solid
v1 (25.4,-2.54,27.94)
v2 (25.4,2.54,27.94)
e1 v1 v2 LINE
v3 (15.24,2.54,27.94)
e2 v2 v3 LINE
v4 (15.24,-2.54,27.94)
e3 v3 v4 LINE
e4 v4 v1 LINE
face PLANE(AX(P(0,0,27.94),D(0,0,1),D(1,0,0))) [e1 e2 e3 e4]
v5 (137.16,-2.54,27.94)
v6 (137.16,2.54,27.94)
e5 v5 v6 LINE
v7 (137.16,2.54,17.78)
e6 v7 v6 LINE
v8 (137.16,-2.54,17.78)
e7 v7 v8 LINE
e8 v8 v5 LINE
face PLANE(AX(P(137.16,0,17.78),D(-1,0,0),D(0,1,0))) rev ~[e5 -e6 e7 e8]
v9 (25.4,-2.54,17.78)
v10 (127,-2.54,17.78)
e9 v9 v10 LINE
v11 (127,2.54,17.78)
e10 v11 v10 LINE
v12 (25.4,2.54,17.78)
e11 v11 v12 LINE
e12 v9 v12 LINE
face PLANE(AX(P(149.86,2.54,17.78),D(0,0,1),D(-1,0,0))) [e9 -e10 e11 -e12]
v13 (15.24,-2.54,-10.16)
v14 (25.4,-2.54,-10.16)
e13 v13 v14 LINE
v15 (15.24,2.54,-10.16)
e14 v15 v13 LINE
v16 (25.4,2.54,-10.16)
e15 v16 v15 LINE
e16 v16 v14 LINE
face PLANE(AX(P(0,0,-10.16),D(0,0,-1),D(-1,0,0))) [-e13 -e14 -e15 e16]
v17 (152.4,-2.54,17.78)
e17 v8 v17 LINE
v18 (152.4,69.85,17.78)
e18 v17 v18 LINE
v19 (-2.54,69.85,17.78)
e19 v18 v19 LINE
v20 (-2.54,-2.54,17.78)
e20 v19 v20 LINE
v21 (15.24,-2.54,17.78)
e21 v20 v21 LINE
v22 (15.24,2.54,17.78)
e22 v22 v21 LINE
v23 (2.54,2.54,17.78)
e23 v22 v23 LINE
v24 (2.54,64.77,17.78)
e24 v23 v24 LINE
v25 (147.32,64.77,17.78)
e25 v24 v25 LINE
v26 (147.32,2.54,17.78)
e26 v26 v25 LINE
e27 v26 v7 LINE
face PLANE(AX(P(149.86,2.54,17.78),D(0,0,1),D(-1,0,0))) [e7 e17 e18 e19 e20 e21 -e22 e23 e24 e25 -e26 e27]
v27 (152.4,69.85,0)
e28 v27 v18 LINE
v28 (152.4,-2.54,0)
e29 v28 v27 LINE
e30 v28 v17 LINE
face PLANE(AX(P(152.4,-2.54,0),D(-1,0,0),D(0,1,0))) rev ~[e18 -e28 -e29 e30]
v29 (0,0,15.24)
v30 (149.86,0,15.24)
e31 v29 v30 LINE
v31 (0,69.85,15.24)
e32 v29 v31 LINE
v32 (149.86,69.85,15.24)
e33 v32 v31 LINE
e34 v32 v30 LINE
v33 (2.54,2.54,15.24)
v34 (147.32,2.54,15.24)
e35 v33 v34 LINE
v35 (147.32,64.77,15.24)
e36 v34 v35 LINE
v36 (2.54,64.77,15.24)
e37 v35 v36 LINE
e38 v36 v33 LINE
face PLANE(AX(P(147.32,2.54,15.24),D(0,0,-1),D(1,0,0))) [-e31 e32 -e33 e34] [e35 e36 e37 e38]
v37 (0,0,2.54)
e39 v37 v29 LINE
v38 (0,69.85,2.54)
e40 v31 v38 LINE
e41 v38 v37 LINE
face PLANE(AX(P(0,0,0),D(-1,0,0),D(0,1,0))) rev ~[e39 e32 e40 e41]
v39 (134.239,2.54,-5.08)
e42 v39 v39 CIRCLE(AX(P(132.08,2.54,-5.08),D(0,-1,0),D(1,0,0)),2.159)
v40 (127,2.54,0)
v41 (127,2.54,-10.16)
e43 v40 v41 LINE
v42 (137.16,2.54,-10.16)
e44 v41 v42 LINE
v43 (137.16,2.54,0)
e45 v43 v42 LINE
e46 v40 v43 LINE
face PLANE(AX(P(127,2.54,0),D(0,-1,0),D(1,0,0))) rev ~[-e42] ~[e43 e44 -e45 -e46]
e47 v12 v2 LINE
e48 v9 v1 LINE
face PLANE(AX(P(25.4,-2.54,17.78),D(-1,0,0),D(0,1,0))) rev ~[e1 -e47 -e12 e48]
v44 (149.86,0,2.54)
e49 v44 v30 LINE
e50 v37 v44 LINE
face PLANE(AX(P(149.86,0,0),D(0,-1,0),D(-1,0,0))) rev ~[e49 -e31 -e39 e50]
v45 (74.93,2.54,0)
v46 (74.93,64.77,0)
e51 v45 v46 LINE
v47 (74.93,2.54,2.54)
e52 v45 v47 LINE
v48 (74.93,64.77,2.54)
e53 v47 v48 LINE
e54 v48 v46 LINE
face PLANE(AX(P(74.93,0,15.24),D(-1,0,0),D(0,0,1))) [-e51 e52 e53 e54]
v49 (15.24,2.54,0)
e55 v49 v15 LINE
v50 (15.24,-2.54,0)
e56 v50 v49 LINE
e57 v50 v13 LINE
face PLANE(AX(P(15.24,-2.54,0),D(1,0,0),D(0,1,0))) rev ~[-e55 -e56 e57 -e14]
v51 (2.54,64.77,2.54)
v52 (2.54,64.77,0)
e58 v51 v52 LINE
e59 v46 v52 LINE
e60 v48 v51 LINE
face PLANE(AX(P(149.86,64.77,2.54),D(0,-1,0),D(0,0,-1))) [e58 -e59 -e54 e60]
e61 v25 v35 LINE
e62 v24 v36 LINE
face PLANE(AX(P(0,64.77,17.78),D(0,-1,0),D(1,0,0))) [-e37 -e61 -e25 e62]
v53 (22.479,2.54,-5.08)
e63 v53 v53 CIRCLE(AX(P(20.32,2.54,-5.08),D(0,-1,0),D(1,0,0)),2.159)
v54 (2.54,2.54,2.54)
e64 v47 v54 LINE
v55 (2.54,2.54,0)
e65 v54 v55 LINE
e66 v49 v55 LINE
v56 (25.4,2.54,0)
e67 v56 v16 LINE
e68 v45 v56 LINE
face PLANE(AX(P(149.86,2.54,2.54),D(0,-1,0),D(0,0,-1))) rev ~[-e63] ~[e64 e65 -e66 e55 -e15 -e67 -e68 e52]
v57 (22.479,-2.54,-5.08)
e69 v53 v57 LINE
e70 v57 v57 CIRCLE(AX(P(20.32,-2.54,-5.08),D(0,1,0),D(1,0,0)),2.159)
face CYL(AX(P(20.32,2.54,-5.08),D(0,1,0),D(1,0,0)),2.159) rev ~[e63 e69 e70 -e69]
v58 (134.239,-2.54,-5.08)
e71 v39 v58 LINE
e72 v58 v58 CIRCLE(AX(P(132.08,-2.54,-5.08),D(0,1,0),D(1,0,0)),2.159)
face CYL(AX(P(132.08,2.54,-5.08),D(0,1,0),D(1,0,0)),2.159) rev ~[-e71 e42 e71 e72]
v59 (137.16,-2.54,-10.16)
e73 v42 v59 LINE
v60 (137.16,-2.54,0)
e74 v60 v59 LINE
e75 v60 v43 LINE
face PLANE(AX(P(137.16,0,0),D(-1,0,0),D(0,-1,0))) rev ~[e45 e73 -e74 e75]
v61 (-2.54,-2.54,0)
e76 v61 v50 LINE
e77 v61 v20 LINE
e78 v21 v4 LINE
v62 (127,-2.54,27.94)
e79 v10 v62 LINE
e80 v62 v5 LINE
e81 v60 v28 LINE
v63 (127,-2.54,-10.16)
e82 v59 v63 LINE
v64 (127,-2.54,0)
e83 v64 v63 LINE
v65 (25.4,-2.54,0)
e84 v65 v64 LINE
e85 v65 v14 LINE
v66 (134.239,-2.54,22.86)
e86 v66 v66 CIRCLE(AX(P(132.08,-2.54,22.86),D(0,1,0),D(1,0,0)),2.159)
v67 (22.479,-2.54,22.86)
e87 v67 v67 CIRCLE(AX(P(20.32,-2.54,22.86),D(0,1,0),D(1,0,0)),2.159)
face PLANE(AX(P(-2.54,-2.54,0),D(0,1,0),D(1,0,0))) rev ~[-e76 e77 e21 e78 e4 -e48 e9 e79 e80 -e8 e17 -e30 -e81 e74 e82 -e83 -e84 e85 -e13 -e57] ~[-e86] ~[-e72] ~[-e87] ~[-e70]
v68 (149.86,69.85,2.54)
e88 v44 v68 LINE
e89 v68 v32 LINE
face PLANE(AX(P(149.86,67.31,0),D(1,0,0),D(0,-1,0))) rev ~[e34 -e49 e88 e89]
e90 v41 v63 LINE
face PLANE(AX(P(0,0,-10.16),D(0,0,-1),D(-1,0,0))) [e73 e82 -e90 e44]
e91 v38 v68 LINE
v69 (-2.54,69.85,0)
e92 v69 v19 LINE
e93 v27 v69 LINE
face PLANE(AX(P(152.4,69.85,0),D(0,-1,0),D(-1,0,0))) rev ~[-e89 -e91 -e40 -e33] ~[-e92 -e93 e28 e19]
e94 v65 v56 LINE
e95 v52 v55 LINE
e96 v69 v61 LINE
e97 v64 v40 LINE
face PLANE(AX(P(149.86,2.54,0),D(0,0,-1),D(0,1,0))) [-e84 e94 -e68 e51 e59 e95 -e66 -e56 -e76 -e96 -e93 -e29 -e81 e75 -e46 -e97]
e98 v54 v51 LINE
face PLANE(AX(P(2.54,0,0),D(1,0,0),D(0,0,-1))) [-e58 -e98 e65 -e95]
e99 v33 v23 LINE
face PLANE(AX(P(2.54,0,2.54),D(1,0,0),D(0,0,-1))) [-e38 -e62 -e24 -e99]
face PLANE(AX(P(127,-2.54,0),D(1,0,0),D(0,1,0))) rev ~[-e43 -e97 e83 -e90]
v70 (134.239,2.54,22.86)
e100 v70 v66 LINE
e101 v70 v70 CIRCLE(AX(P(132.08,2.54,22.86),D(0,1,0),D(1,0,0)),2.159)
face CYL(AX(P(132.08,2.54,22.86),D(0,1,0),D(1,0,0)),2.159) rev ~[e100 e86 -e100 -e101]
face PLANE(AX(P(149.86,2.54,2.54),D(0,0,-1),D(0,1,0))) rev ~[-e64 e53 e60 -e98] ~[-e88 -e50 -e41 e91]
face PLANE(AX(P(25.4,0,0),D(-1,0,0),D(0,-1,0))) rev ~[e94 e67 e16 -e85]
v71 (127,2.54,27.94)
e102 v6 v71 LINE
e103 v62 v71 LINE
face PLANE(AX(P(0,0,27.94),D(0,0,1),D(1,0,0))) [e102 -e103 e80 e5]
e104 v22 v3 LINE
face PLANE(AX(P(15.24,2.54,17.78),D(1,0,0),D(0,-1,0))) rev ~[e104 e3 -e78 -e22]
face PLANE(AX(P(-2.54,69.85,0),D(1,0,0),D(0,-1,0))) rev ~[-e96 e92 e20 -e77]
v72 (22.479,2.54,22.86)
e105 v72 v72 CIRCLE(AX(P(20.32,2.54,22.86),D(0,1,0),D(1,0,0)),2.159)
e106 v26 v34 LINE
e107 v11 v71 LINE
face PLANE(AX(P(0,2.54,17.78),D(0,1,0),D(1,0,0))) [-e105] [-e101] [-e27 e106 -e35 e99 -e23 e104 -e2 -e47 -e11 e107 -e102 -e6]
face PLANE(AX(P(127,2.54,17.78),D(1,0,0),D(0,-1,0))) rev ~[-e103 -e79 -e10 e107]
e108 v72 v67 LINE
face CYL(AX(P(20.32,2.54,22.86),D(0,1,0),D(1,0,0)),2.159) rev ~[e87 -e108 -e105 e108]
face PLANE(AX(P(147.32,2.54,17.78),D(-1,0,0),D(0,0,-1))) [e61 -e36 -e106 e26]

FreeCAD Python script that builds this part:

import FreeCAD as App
import Part
import Sketcher
Q = App.Units.Quantity

doc = App.newDocument("Part")
body = doc.addObject("PartDesign::Body", "Body")

# Sketch on XY plane
sketch1 = body.newObject("Sketcher::SketchObject", "Sketch")
sketch1.AttachmentSupport = (doc.getObject("XY_Plane"), [""])
sketch1.MapMode = "FlatFace"
sketch1.addGeometry(Part.LineSegment(App.Vector(152, 70, 0), App.Vector(-3, 70, 0)), False)
sketch1.addGeometry(Part.LineSegment(App.Vector(-3, 70, 0), App.Vector(-3, -3, 0)), False)
sketch1.addGeometry(Part.LineSegment(App.Vector(-3, -3, 0), App.Vector(152, -3, 0)), False)
sketch1.addGeometry(Part.LineSegment(App.Vector(152, -3, 0), App.Vector(152, 70, 0)), False)
sketch1.addGeometry(Part.LineSegment(App.Vector(150, 0, 0), App.Vector(0, 0, 0)), False)
sketch1.addGeometry(Part.LineSegment(App.Vector(0, 0, 0), App.Vector(0, 67, 0)), False)
sketch1.addGeometry(Part.LineSegment(App.Vector(0, 67, 0), App.Vector(150, 67, 0)), False)
sketch1.addGeometry(Part.LineSegment(App.Vector(150, 67, 0), App.Vector(150, 0, 0)), False)
sketch1.addConstraint(Sketcher.Constraint("Coincident", 0, 2, 1, 1))
sketch1.addConstraint(Sketcher.Constraint("Coincident", 1, 2, 2, 1))
sketch1.addConstraint(Sketcher.Constraint("Coincident", 2, 2, 3, 1))
sketch1.addConstraint(Sketcher.Constraint("Coincident", 3, 2, 0, 1))
sketch1.addConstraint(Sketcher.Constraint("Coincident", 4, 2, 5, 1))
sketch1.addConstraint(Sketcher.Constraint("Coincident", 5, 2, 6, 1))
sketch1.addConstraint(Sketcher.Constraint("Coincident", 6, 2, 7, 1))
sketch1.addConstraint(Sketcher.Constraint("Coincident", 7, 2, 4, 1))
sketch1.addConstraint(Sketcher.Constraint("Horizontal", 0))
sketch1.addConstraint(Sketcher.Constraint("Vertical", 1))
sketch1.addConstraint(Sketcher.Constraint("Horizontal", 2))
sketch1.addConstraint(Sketcher.Constraint("Vertical", 3))
sketch1.addConstraint(Sketcher.Constraint("Horizontal", 4))
sketch1.addConstraint(Sketcher.Constraint("Vertical", 5))
sketch1.addConstraint(Sketcher.Constraint("Horizontal", 6))
sketch1.addConstraint(Sketcher.Constraint("Vertical", 7))
sketch1.addConstraint(Sketcher.Constraint("Coincident", 4, 2, -1, 1))
sketch1.addConstraint(Sketcher.Constraint("DistanceX", 0, 2, 0, 1, Q("6.1 in")))
sketch1.addConstraint(Sketcher.Constraint("DistanceX", 4, 2, 4, 1, Q("5.9 in")))
sketch1.addConstraint(Sketcher.Constraint("DistanceY", 1, 2, 1, 1, Q("2.85 in")))
sketch1.addConstraint(Sketcher.Constraint("DistanceY", 5, 1, 5, 2, Q("2.65 in")))
sketch1.addConstraint(Sketcher.Constraint("DistanceX", -1, 1, 2, 2, Q("6 in")))
sketch1.addConstraint(Sketcher.Constraint("DistanceY", 1, 2, -1, 1, Q("0.1 in")))
pad1 = body.newObject("PartDesign::Pad", "Pad")
pad1.Profile = sketch1
pad1.Length = Q("0.7 in")

# Sketch on YZ plane
sketch2 = body.newObject("Sketcher::SketchObject", "Sketch001")
sketch2.AttachmentSupport = (doc.getObject("YZ_Plane"), [""])
sketch2.MapMode = "FlatFace"
sketch2.addGeometry(Part.LineSegment(App.Vector(0, 2.5, 0), App.Vector(0, 0, 0)), False)
sketch2.addGeometry(Part.LineSegment(App.Vector(0, 0, 0), App.Vector(67.3, 0, 0)), False)
sketch2.addGeometry(Part.LineSegment(App.Vector(67.3, 0, 0), App.Vector(67.3, 2.5, 0)), False)
sketch2.addGeometry(Part.LineSegment(App.Vector(67.3, 2.5, 0), App.Vector(0, 2.5, 0)), False)
sketch2.addConstraint(Sketcher.Constraint("Coincident", 0, 2, 1, 1))
sketch2.addConstraint(Sketcher.Constraint("Coincident", 1, 2, 2, 1))
sketch2.addConstraint(Sketcher.Constraint("Coincident", 2, 2, 3, 1))
sketch2.addConstraint(Sketcher.Constraint("Coincident", 3, 2, 0, 1))
sketch2.addConstraint(Sketcher.Constraint("Vertical", 0))
sketch2.addConstraint(Sketcher.Constraint("Horizontal", 1))
sketch2.addConstraint(Sketcher.Constraint("Vertical", 2))
sketch2.addConstraint(Sketcher.Constraint("Horizontal", 3))
sketch2.addConstraint(Sketcher.Constraint("Coincident", 0, 2, -1, 1))
sketch2.addConstraint(Sketcher.Constraint("DistanceY", 0, 2, 0, 1, Q("0.1 in")))
sketch2.addConstraint(Sketcher.Constraint("DistanceX", 1, 1, 1, 2, Q("2.65 in")))
pad2 = body.newObject("PartDesign::Pad", "Pad001")
pad2.Profile = sketch2
pad2.Length = Q("0.1 in")

# Sketch on XZ plane
sketch3 = body.newObject("Sketcher::SketchObject", "Sketch002")
sketch3.AttachmentSupport = (doc.getObject("XZ_Plane"), [""])
sketch3.MapMode = "FlatFace"
sketch3.addGeometry(Part.LineSegment(App.Vector(149.9, 15.2, 0), App.Vector(0, 15.2, 0)), False)
sketch3.addGeometry(Part.LineSegment(App.Vector(0, 15.2, 0), App.Vector(0, 17.8, 0)), False)
sketch3.addGeometry(Part.LineSegment(App.Vector(0, 17.8, 0), App.Vector(149.9, 17.8, 0)), False)
sketch3.addGeometry(Part.LineSegment(App.Vector(149.9, 17.8, 0), App.Vector(149.9, 15.2, 0)), False)
sketch3.addConstraint(Sketcher.Constraint("Coincident", 0, 2, 1, 1))
sketch3.addConstraint(Sketcher.Constraint("Coincident", 1, 2, 2, 1))
sketch3.addConstraint(Sketcher.Constraint("Coincident", 2, 2, 3, 1))
sketch3.addConstraint(Sketcher.Constraint("Coincident", 3, 2, 0, 1))
sketch3.addConstraint(Sketcher.Constraint("Horizontal", 0))
sketch3.addConstraint(Sketcher.Constraint("Vertical", 1))
sketch3.addConstraint(Sketcher.Constraint("Horizontal", 2))
sketch3.addConstraint(Sketcher.Constraint("Vertical", 3))
sketch3.addConstraint(Sketcher.Constraint("PointOnObject", 0, 2, -2))
sketch3.addConstraint(Sketcher.Constraint("DistanceX", 0, 2, 0, 1, Q("5.9 in")))
sketch3.addConstraint(Sketcher.Constraint("DistanceY", 1, 1, 1, 2, Q("0.1 in")))
sketch3.addConstraint(Sketcher.Constraint("DistanceY", -1, 1, 0, 2, Q("0.6 in")))
pad3 = body.newObject("PartDesign::Pad", "Pad002")
pad3.Profile = sketch3
pad3.Length = Q("0.1 in")
pad3.Reversed = True

# Sketch on XZ plane
sketch4 = body.newObject("Sketcher::SketchObject", "Sketch003")
sketch4.AttachmentSupport = (doc.getObject("XZ_Plane"), [""])
sketch4.MapMode = "FlatFace"
sketch4.AttachmentOffset = App.Placement(App.Vector(0, 0, -2.75 * 25.4), App.Rotation())
sketch4.addGeometry(Part.LineSegment(App.Vector(0, 3, 0), App.Vector(0, 15, 0)), False)
sketch4.addGeometry(Part.LineSegment(App.Vector(0, 15, 0), App.Vector(150, 15, 0)), False)
sketch4.addGeometry(Part.LineSegment(App.Vector(150, 15, 0), App.Vector(150, 3, 0)), False)
sketch4.addGeometry(Part.LineSegment(App.Vector(150, 3, 0), App.Vector(0, 3, 0)), False)
sketch4.addConstraint(Sketcher.Constraint("Coincident", 0, 2, 1, 1))
sketch4.addConstraint(Sketcher.Constraint("Coincident", 1, 2, 2, 1))
sketch4.addConstraint(Sketcher.Constraint("Coincident", 2, 2, 3, 1))
sketch4.addConstraint(Sketcher.Constraint("Coincident", 3, 2, 0, 1))
sketch4.addConstraint(Sketcher.Constraint("Vertical", 0))
sketch4.addConstraint(Sketcher.Constraint("Horizontal", 1))
sketch4.addConstraint(Sketcher.Constraint("Vertical", 2))
sketch4.addConstraint(Sketcher.Constraint("Horizontal", 3))
sketch4.addConstraint(Sketcher.Constraint("PointOnObject", 0, 2, -2))
sketch4.addConstraint(Sketcher.Constraint("DistanceX", 1, 1, 1, 2, Q("5.9 in")))
sketch4.addConstraint(Sketcher.Constraint("DistanceY", 0, 1, 0, 2, Q("0.5 in")))
sketch4.addConstraint(Sketcher.Constraint("DistanceY", -1, 1, 0, 2, Q("0.6 in")))
pocket1 = body.newObject("PartDesign::Pocket", "Pocket")
pocket1.Profile = sketch4
pocket1.Length = Q("0.1 in")
pocket1.Reversed = True

# Sketch on XZ plane
sketch5 = body.newObject("Sketcher::SketchObject", "Sketch004")
sketch5.AttachmentSupport = (doc.getObject("XZ_Plane"), [""])
sketch5.MapMode = "FlatFace"
sketch5.AttachmentOffset = App.Placement(App.Vector(0, 0, -2.65 * 25.4), App.Rotation())
sketch5.addGeometry(Part.LineSegment(App.Vector(149.9, 15.2, 0), App.Vector(149.9, 17.8, 0)), False)
sketch5.addGeometry(Part.LineSegment(App.Vector(149.9, 17.8, 0), App.Vector(0, 17.8, 0)), False)
sketch5.addGeometry(Part.LineSegment(App.Vector(0, 17.8, 0), App.Vector(0, 15.2, 0)), False)
sketch5.addGeometry(Part.LineSegment(App.Vector(0, 15.2, 0), App.Vector(149.9, 15.2, 0)), False)
sketch5.addConstraint(Sketcher.Constraint("Coincident", 0, 2, 1, 1))
sketch5.addConstraint(Sketcher.Constraint("Coincident", 1, 2, 2, 1))
sketch5.addConstraint(Sketcher.Constraint("Coincident", 2, 2, 3, 1))
sketch5.addConstraint(Sketcher.Constraint("Coincident", 3, 2, 0, 1))
sketch5.addConstraint(Sketcher.Constraint("Vertical", 0))
sketch5.addConstraint(Sketcher.Constraint("Horizontal", 1))
sketch5.addConstraint(Sketcher.Constraint("Vertical", 2))
sketch5.addConstraint(Sketcher.Constraint("Horizontal", 3))
sketch5.addConstraint(Sketcher.Constraint("PointOnObject", 1, 2, -2))
sketch5.addConstraint(Sketcher.Constraint("DistanceX", 1, 2, 1, 1, Q("5.9 in")))
sketch5.addConstraint(Sketcher.Constraint("DistanceY", 0, 1, 0, 2, Q("0.1 in")))
sketch5.addConstraint(Sketcher.Constraint("DistanceY", -1, 1, 0, 2, Q("0.7 in")))
pad4 = body.newObject("PartDesign::Pad", "Pad003")
pad4.Profile = sketch5
pad4.Length = Q("0.1 in")

# Sketch on YZ plane
sketch6 = body.newObject("Sketcher::SketchObject", "Sketch005")
sketch6.AttachmentSupport = (doc.getObject("YZ_Plane"), [""])
sketch6.MapMode = "FlatFace"
sketch6.addGeometry(Part.LineSegment(App.Vector(2.5, 17.8, 0), App.Vector(2.5, 15.2, 0)), False)
sketch6.addGeometry(Part.LineSegment(App.Vector(2.5, 15.2, 0), App.Vector(64.8, 15.2, 0)), False)
sketch6.addGeometry(Part.LineSegment(App.Vector(64.8, 15.2, 0), App.Vector(64.8, 17.8, 0)), False)
sketch6.addGeometry(Part.LineSegment(App.Vector(64.8, 17.8, 0), App.Vector(2.5, 17.8, 0)), False)
sketch6.addConstraint(Sketcher.Constraint("Coincident", 0, 2, 1, 1))
sketch6.addConstraint(Sketcher.Constraint("Coincident", 1, 2, 2, 1))
sketch6.addConstraint(Sketcher.Constraint("Coincident", 2, 2, 3, 1))
sketch6.addConstraint(Sketcher.Constraint("Coincident", 3, 2, 0, 1))
sketch6.addConstraint(Sketcher.Constraint("Vertical", 0))
sketch6.addConstraint(Sketcher.Constraint("Horizontal", 1))
sketch6.addConstraint(Sketcher.Constraint("Vertical", 2))
sketch6.addConstraint(Sketcher.Constraint("Horizontal", 3))
sketch6.addConstraint(Sketcher.Constraint("DistanceX", 1, 1, 1, 2, Q("2.45 in")))
sketch6.addConstraint(Sketcher.Constraint("DistanceY", 0, 2, 0, 1, Q("0.1 in")))
sketch6.addConstraint(Sketcher.Constraint("DistanceX", -1, 1, 0, 2, Q("0.1 in")))
sketch6.addConstraint(Sketcher.Constraint("DistanceY", -1, 1, 0, 2, Q("0.6 in")))
pad5 = body.newObject("PartDesign::Pad", "Pad004")
pad5.Profile = sketch6
pad5.Length = Q("0.1 in")

# Sketch on XZ plane
sketch7 = body.newObject("Sketcher::SketchObject", "Sketch006")
sketch7.AttachmentSupport = (doc.getObject("XZ_Plane"), [""])
sketch7.MapMode = "FlatFace"
sketch7.AttachmentOffset = App.Placement(App.Vector(0, 0, -0.1 * 25.4), App.Rotation())
sketch7.addGeometry(Part.LineSegment(App.Vector(149.9, 17.8, 0), App.Vector(149.9, 15.2, 0)), False)
sketch7.addGeometry(Part.LineSegment(App.Vector(149.9, 15.2, 0), App.Vector(147.3, 15.2, 0)), False)
sketch7.addGeometry(Part.LineSegment(App.Vector(147.3, 15.2, 0), App.Vector(147.3, 17.8, 0)), False)
sketch7.addGeometry(Part.LineSegment(App.Vector(147.3, 17.8, 0), App.Vector(149.9, 17.8, 0)), False)
sketch7.addConstraint(Sketcher.Constraint("Coincident", 0, 2, 1, 1))
sketch7.addConstraint(Sketcher.Constraint("Coincident", 1, 2, 2, 1))
sketch7.addConstraint(Sketcher.Constraint("Coincident", 2, 2, 3, 1))
sketch7.addConstraint(Sketcher.Constraint("Coincident", 3, 2, 0, 1))
sketch7.addConstraint(Sketcher.Constraint("Vertical", 0))
sketch7.addConstraint(Sketcher.Constraint("Horizontal", 1))
sketch7.addConstraint(Sketcher.Constraint("Vertical", 2))
sketch7.addConstraint(Sketcher.Constraint("Horizontal", 3))
sketch7.addConstraint(Sketcher.Constraint("Equal", 3, 0))
sketch7.addConstraint(Sketcher.Constraint("DistanceX", 1, 2, 1, 1, Q("0.1 in")))
sketch7.addConstraint(Sketcher.Constraint("DistanceX", -1, 1, 0, 2, Q("5.9 in")))
sketch7.addConstraint(Sketcher.Constraint("DistanceY", -1, 1, 0, 2, Q("0.6 in")))
pad6 = body.newObject("PartDesign::Pad", "Pad005")
pad6.Profile = sketch7
pad6.Length = Q("2.45 in")
pad6.Reversed = True

# Sketch on YZ plane
sketch8 = body.newObject("Sketcher::SketchObject", "Sketch007")
sketch8.AttachmentSupport = (doc.getObject("YZ_Plane"), [""])
sketch8.MapMode = "FlatFace"
sketch8.AttachmentOffset = App.Placement(App.Vector(0, 0, 5.9 * 25.4), App.Rotation())
sketch8.addGeometry(Part.LineSegment(App.Vector(2.5, 0, 0), App.Vector(0, 0, 0)), False)
sketch8.addGeometry(Part.LineSegment(App.Vector(0, 0, 0), App.Vector(0, 2.5, 0)), False)
sketch8.addGeometry(Part.LineSegment(App.Vector(0, 2.5, 0), App.Vector(2.5, 2.5, 0)), False)
sketch8.addGeometry(Part.LineSegment(App.Vector(2.5, 2.5, 0), App.Vector(2.5, 0, 0)), False)
sketch8.addConstraint(Sketcher.Constraint("Coincident", 0, 2, 1, 1))
sketch8.addConstraint(Sketcher.Constraint("Coincident", 1, 2, 2, 1))
sketch8.addConstraint(Sketcher.Constraint("Coincident", 2, 2, 3, 1))
sketch8.addConstraint(Sketcher.Constraint("Coincident", 3, 2, 0, 1))
sketch8.addConstraint(Sketcher.Constraint("Horizontal", 0))
sketch8.addConstraint(Sketcher.Constraint("Vertical", 1))
sketch8.addConstraint(Sketcher.Constraint("Horizontal", 2))
sketch8.addConstraint(Sketcher.Constraint("Vertical", 3))
sketch8.addConstraint(Sketcher.Constraint("Coincident", 0, 2, -1, 1))
sketch8.addConstraint(Sketcher.Constraint("Equal", 2, 1))
sketch8.addConstraint(Sketcher.Constraint("DistanceX", 0, 2, 0, 1, Q("0.1 in")))
pad7 = body.newObject("PartDesign::Pad", "Pad006")
pad7.Profile = sketch8
pad7.Length = Q("5.9 in")
pad7.Reversed = True

# Sketch on YZ plane
sketch9 = body.newObject("Sketcher::SketchObject", "Sketch008")
sketch9.AttachmentSupport = (doc.getObject("YZ_Plane"), [""])
sketch9.MapMode = "FlatFace"
sketch9.AttachmentOffset = App.Placement(App.Vector(0, 0, 5.9 * 25.4), App.Rotation())
sketch9.addGeometry(Part.LineSegment(App.Vector(67.3, 2.5, 0), App.Vector(67.3, 0, 0)), False)
sketch9.addGeometry(Part.LineSegment(App.Vector(67.3, 0, 0), App.Vector(64.8, 0, 0)), False)
sketch9.addGeometry(Part.LineSegment(App.Vector(64.8, 0, 0), App.Vector(64.8, 2.5, 0)), False)
sketch9.addGeometry(Part.LineSegment(App.Vector(64.8, 2.5, 0), App.Vector(67.3, 2.5, 0)), False)
sketch9.addConstraint(Sketcher.Constraint("Coincident", 0, 2, 1, 1))
sketch9.addConstraint(Sketcher.Constraint("Coincident", 1, 2, 2, 1))
sketch9.addConstraint(Sketcher.Constraint("Coincident", 2, 2, 3, 1))
sketch9.addConstraint(Sketcher.Constraint("Coincident", 3, 2, 0, 1))
sketch9.addConstraint(Sketcher.Constraint("Vertical", 0))
sketch9.addConstraint(Sketcher.Constraint("Horizontal", 1))
sketch9.addConstraint(Sketcher.Constraint("Vertical", 2))
sketch9.addConstraint(Sketcher.Constraint("Horizontal", 3))
sketch9.addConstraint(Sketcher.Constraint("PointOnObject", 0, 2, -1))
sketch9.addConstraint(Sketcher.Constraint("Equal", 3, 0))
sketch9.addConstraint(Sketcher.Constraint("DistanceX", 1, 2, 1, 1, Q("0.1 in")))
sketch9.addConstraint(Sketcher.Constraint("DistanceX", -1, 1, 0, 2, Q("2.65 in")))
pad8 = body.newObject("PartDesign::Pad", "Pad007")
pad8.Profile = sketch9
pad8.Length = Q("5.9 in")
pad8.Reversed = True

# Sketch on YZ plane
sketch10 = body.newObject("Sketcher::SketchObject", "Sketch009")
sketch10.AttachmentSupport = (doc.getObject("YZ_Plane"), [""])
sketch10.MapMode = "FlatFace"
sketch10.AttachmentOffset = App.Placement(App.Vector(0, 0, 5.9 * 25.4), App.Rotation())
sketch10.addGeometry(Part.LineSegment(App.Vector(64.8, 0, 0), App.Vector(2.5, 0, 0)), False)
sketch10.addGeometry(Part.LineSegment(App.Vector(2.5, 0, 0), App.Vector(2.5, 2.5, 0)), False)
sketch10.addGeometry(Part.LineSegment(App.Vector(2.5, 2.5, 0), App.Vector(64.8, 2.5, 0)), False)
sketch10.addGeometry(Part.LineSegment(App.Vector(64.8, 2.5, 0), App.Vector(64.8, 0, 0)), False)
sketch10.addConstraint(Sketcher.Constraint("Coincident", 0, 2, 1, 1))
sketch10.addConstraint(Sketcher.Constraint("Coincident", 1, 2, 2, 1))
sketch10.addConstraint(Sketcher.Constraint("Coincident", 2, 2, 3, 1))
sketch10.addConstraint(Sketcher.Constraint("Coincident", 3, 2, 0, 1))
sketch10.addConstraint(Sketcher.Constraint("Horizontal", 0))
sketch10.addConstraint(Sketcher.Constraint("Vertical", 1))
sketch10.addConstraint(Sketcher.Constraint("Horizontal", 2))
sketch10.addConstraint(Sketcher.Constraint("Vertical", 3))
sketch10.addConstraint(Sketcher.Constraint("PointOnObject", 0, 2, -1))
sketch10.addConstraint(Sketcher.Constraint("DistanceY", 1, 1, 1, 2, Q("0.1 in")))
sketch10.addConstraint(Sketcher.Constraint("DistanceX", 0, 2, 0, 1, Q("2.45 in")))
sketch10.addConstraint(Sketcher.Constraint("DistanceX", -1, 1, 0, 2, Q("0.1 in")))
pad9 = body.newObject("PartDesign::Pad", "Pad008")
pad9.Profile = sketch10
pad9.Length = Q("2.95 in")
pad9.Reversed = True

# Sketch on XY plane
sketch11 = body.newObject("Sketcher::SketchObject", "Sketch010")
sketch11.AttachmentSupport = (doc.getObject("XY_Plane"), [""])
sketch11.MapMode = "FlatFace"
sketch11.AttachmentOffset = App.Placement(App.Vector(0, 0, 0.7 * 25.4), App.Rotation())
sketch11.addGeometry(Part.LineSegment(App.Vector(25, -3, 0), App.Vector(25, 3, 0)), False)
sketch11.addGeometry(Part.LineSegment(App.Vector(25, 3, 0), App.Vector(15, 3, 0)), False)
sketch11.addGeometry(Part.LineSegment(App.Vector(15, 3, 0), App.Vector(15, -3, 0)), False)
sketch11.addGeometry(Part.LineSegment(App.Vector(15, -3, 0), App.Vector(25, -3, 0)), False)
sketch11.addConstraint(Sketcher.Constraint("Coincident", 0, 2, 1, 1))
sketch11.addConstraint(Sketcher.Constraint("Coincident", 1, 2, 2, 1))
sketch11.addConstraint(Sketcher.Constraint("Coincident", 2, 2, 3, 1))
sketch11.addConstraint(Sketcher.Constraint("Coincident", 3, 2, 0, 1))
sketch11.addConstraint(Sketcher.Constraint("Vertical", 0))
sketch11.addConstraint(Sketcher.Constraint("Horizontal", 1))
sketch11.addConstraint(Sketcher.Constraint("Vertical", 2))
sketch11.addConstraint(Sketcher.Constraint("Horizontal", 3))
sketch11.addConstraint(Sketcher.Constraint("DistanceX", 1, 2, 1, 1, Q("0.4 in")))
sketch11.addConstraint(Sketcher.Constraint("DistanceY", 0, 1, 0, 2, Q("0.2 in")))
sketch11.addConstraint(Sketcher.Constraint("DistanceX", -1, 1, 0, 2, Q("1 in")))
sketch11.addConstraint(Sketcher.Constraint("DistanceY", -1, 1, 0, 2, Q("0.1 in")))
pad10 = body.newObject("PartDesign::Pad", "Pad009")
pad10.Profile = sketch11
pad10.Length = Q("0.4 in")

# Sketch on XZ plane
sketch12 = body.newObject("Sketcher::SketchObject", "Sketch011")
sketch12.AttachmentSupport = (doc.getObject("XZ_Plane"), [""])
sketch12.MapMode = "FlatFace"
sketch12.AttachmentOffset = App.Placement(App.Vector(0, 0, -0.1 * 25.4), App.Rotation())
sketch12.addGeometry(Part.Circle(App.Vector(20.3, 22.9, 0), App.Vector(0, 0, 1), 2.2), False)
sketch12.addConstraint(Sketcher.Constraint("Diameter", 0, Q("0.17 in")))
sketch12.addConstraint(Sketcher.Constraint("DistanceX", -1, 1, 0, 3, Q("0.8 in")))
sketch12.addConstraint(Sketcher.Constraint("DistanceY", -1, 1, 0, 3, Q("0.9 in")))
pocket2 = body.newObject("PartDesign::Pocket", "Pocket001")
pocket2.Profile = sketch12
pocket2.Length = Q("0.4 in")
pocket2.Reversed = True

# Sketch on XY plane
sketch13 = body.newObject("Sketcher::SketchObject", "Sketch012")
sketch13.AttachmentSupport = (doc.getObject("XY_Plane"), [""])
sketch13.MapMode = "FlatFace"
sketch13.AttachmentOffset = App.Placement(App.Vector(0, 0, 0.7 * 25.4), App.Rotation())
sketch13.addGeometry(Part.LineSegment(App.Vector(127, 3, 0), App.Vector(127, -3, 0)), False)
sketch13.addGeometry(Part.LineSegment(App.Vector(127, -3, 0), App.Vector(137, -3, 0)), False)
sketch13.addGeometry(Part.LineSegment(App.Vector(137, -3, 0), App.Vector(137, 3, 0)), False)
sketch13.addGeometry(Part.LineSegment(App.Vector(137, 3, 0), App.Vector(127, 3, 0)), False)
sketch13.addConstraint(Sketcher.Constraint("Coincident", 0, 2, 1, 1))
sketch13.addConstraint(Sketcher.Constraint("Coincident", 1, 2, 2, 1))
sketch13.addConstraint(Sketcher.Constraint("Coincident", 2, 2, 3, 1))
sketch13.addConstraint(Sketcher.Constraint("Coincident", 3, 2, 0, 1))
sketch13.addConstraint(Sketcher.Constraint("Vertical", 0))
sketch13.addConstraint(Sketcher.Constraint("Horizontal", 1))
sketch13.addConstraint(Sketcher.Constraint("Vertical", 2))
sketch13.addConstraint(Sketcher.Constraint("Horizontal", 3))
sketch13.addConstraint(Sketcher.Constraint("DistanceX", 1, 1, 1, 2, Q("0.4 in")))
sketch13.addConstraint(Sketcher.Constraint("DistanceY", 0, 2, 0, 1, Q("0.2 in")))
sketch13.addConstraint(Sketcher.Constraint("DistanceX", -1, 1, 0, 2, Q("5 in")))
sketch13.addConstraint(Sketcher.Constraint("DistanceY", 0, 2, -1, 1, Q("0.1 in")))
pad11 = body.newObject("PartDesign::Pad", "Pad010")
pad11.Profile = sketch13
pad11.Length = Q("0.4 in")

# Sketch on XZ plane
sketch14 = body.newObject("Sketcher::SketchObject", "Sketch013")
sketch14.AttachmentSupport = (doc.getObject("XZ_Plane"), [""])
sketch14.MapMode = "FlatFace"
sketch14.AttachmentOffset = App.Placement(App.Vector(0, 0, -0.1 * 25.4), App.Rotation())
sketch14.addGeometry(Part.Circle(App.Vector(132.1, 22.9, 0), App.Vector(0, 0, 1), 2.2), False)
sketch14.addConstraint(Sketcher.Constraint("Diameter", 0, Q("0.17 in")))
sketch14.addConstraint(Sketcher.Constraint("DistanceX", -1, 1, 0, 3, Q("5.2 in")))
sketch14.addConstraint(Sketcher.Constraint("DistanceY", -1, 1, 0, 3, Q("0.9 in")))
pocket3 = body.newObject("PartDesign::Pocket", "Pocket002")
pocket3.Profile = sketch14
pocket3.Length = Q("0.4 in")
pocket3.Reversed = True

# Sketch on XY plane
sketch15 = body.newObject("Sketcher::SketchObject", "Sketch014")
sketch15.AttachmentSupport = (doc.getObject("XY_Plane"), [""])
sketch15.MapMode = "FlatFace"
sketch15.addGeometry(Part.LineSegment(App.Vector(15, -3, 0), App.Vector(15, 3, 0)), False)
sketch15.addGeometry(Part.LineSegment(App.Vector(15, 3, 0), App.Vector(25, 3, 0)), False)
sketch15.addGeometry(Part.LineSegment(App.Vector(25, 3, 0), App.Vector(25, -3, 0)), False)
sketch15.addGeometry(Part.LineSegment(App.Vector(25, -3, 0), App.Vector(15, -3, 0)), False)
sketch15.addConstraint(Sketcher.Constraint("Coincident", 0, 2, 1, 1))
sketch15.addConstraint(Sketcher.Constraint("Coincident", 1, 2, 2, 1))
sketch15.addConstraint(Sketcher.Constraint("Coincident", 2, 2, 3, 1))
sketch15.addConstraint(Sketcher.Constraint("Coincident", 3, 2, 0, 1))
sketch15.addConstraint(Sketcher.Constraint("Vertical", 0))
sketch15.addConstraint(Sketcher.Constraint("Horizontal", 1))
sketch15.addConstraint(Sketcher.Constraint("Vertical", 2))
sketch15.addConstraint(Sketcher.Constraint("Horizontal", 3))
sketch15.addConstraint(Sketcher.Constraint("DistanceX", 1, 1, 1, 2, Q("0.4 in")))
sketch15.addConstraint(Sketcher.Constraint("DistanceY", 0, 1, 0, 2, Q("0.2 in")))
sketch15.addConstraint(Sketcher.Constraint("DistanceX", -1, 1, 1, 2, Q("1 in")))
sketch15.addConstraint(Sketcher.Constraint("DistanceY", -1, 1, 0, 2, Q("0.1 in")))
pad12 = body.newObject("PartDesign::Pad", "Pad011")
pad12.Profile = sketch15
pad12.Length = Q("0.4 in")
pad12.Reversed = True

# Sketch on XZ plane
sketch16 = body.newObject("Sketcher::SketchObject", "Sketch015")
sketch16.AttachmentSupport = (doc.getObject("XZ_Plane"), [""])
sketch16.MapMode = "FlatFace"
sketch16.AttachmentOffset = App.Placement(App.Vector(0, 0, -0.1 * 25.4), App.Rotation())
sketch16.addGeometry(Part.Circle(App.Vector(20.3, -5.1, 0), App.Vector(0, 0, 1), 2.2), False)
sketch16.addConstraint(Sketcher.Constraint("Diameter", 0, Q("0.17 in")))
sketch16.addConstraint(Sketcher.Constraint("DistanceY", 0, 3, -1, 1, Q("0.2 in")))
sketch16.addConstraint(Sketcher.Constraint("DistanceX", -1, 1, 0, 3, Q("0.8 in")))
pocket4 = body.newObject("PartDesign::Pocket", "Pocket003")
pocket4.Profile = sketch16
pocket4.Length = Q("0.4 in")
pocket4.Reversed = True

# Sketch on XY plane
sketch17 = body.newObject("Sketcher::SketchObject", "Sketch016")
sketch17.AttachmentSupport = (doc.getObject("XY_Plane"), [""])
sketch17.MapMode = "FlatFace"
sketch17.addGeometry(Part.LineSegment(App.Vector(127, -3, 0), App.Vector(127, 3, 0)), False)
sketch17.addGeometry(Part.LineSegment(App.Vector(127, 3, 0), App.Vector(137, 3, 0)), False)
sketch17.addGeometry(Part.LineSegment(App.Vector(137, 3, 0), App.Vector(137, -3, 0)), False)
sketch17.addGeometry(Part.LineSegment(App.Vector(137, -3, 0), App.Vector(127, -3, 0)), False)
sketch17.addConstraint(Sketcher.Constraint("Coincident", 0, 2, 1, 1))
sketch17.addConstraint(Sketcher.Constraint("Coincident", 1, 2, 2, 1))
sketch17.addConstraint(Sketcher.Constraint("Coincident", 2, 2, 3, 1))
sketch17.addConstraint(Sketcher.Constraint("Coincident", 3, 2, 0, 1))
sketch17.addConstraint(Sketcher.Constraint("Vertical", 0))
sketch17.addConstraint(Sketcher.Constraint("Horizontal", 1))
sketch17.addConstraint(Sketcher.Constraint("Vertical", 2))
sketch17.addConstraint(Sketcher.Constraint("Horizontal", 3))
sketch17.addConstraint(Sketcher.Constraint("DistanceX", 1, 1, 1, 2, Q("0.4 in")))
sketch17.addConstraint(Sketcher.Constraint("DistanceY", 0, 1, 0, 2, Q("0.2 in")))
sketch17.addConstraint(Sketcher.Constraint("DistanceX", -1, 1, 0, 2, Q("5 in")))
sketch17.addConstraint(Sketcher.Constraint("DistanceY", -1, 1, 0, 2, Q("0.1 in")))
pad13 = body.newObject("PartDesign::Pad", "Pad012")
pad13.Profile = sketch17
pad13.Length = Q("0.4 in")
pad13.Reversed = True

# Sketch on XZ plane
sketch18 = body.newObject("Sketcher::SketchObject", "Sketch017")
sketch18.AttachmentSupport = (doc.getObject("XZ_Plane"), [""])
sketch18.MapMode = "FlatFace"
sketch18.AttachmentOffset = App.Placement(App.Vector(0, 0, -0.1 * 25.4), App.Rotation())
sketch18.addGeometry(Part.Circle(App.Vector(132.1, -5.1, 0), App.Vector(0, 0, 1), 2.2), False)
sketch18.addConstraint(Sketcher.Constraint("Diameter", 0, Q("0.17 in")))
sketch18.addConstraint(Sketcher.Constraint("DistanceY", 0, 3, -1, 1, Q("0.2 in")))
sketch18.addConstraint(Sketcher.Constraint("DistanceX", -1, 1, 0, 3, Q("5.2 in")))
pocket5 = body.newObject("PartDesign::Pocket", "Pocket004")
pocket5.Profile = sketch18
pocket5.Length = Q("0.4 in")
pocket5.Reversed = True

doc.recompute()
